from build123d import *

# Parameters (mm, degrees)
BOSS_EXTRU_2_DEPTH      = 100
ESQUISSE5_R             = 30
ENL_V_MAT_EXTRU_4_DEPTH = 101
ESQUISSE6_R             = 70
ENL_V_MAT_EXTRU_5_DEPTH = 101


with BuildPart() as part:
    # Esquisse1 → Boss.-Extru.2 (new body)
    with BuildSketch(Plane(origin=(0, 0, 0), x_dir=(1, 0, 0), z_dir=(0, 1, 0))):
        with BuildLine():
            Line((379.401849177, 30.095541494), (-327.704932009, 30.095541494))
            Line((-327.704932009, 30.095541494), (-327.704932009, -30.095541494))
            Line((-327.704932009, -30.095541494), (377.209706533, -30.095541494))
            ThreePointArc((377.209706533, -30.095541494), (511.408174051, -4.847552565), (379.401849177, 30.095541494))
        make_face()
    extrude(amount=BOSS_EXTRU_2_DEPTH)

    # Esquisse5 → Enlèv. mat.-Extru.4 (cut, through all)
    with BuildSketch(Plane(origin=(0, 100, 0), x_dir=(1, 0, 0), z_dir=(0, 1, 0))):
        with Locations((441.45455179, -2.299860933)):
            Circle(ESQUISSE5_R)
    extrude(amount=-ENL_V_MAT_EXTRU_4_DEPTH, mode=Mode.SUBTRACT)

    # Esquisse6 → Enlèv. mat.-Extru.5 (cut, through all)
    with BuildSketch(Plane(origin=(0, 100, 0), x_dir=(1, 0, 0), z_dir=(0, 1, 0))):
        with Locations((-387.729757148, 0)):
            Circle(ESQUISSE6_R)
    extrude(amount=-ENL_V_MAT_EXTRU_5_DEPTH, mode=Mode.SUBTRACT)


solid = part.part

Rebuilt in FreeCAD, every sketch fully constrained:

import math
import FreeCAD as App
import Part
import Sketcher

V = App.Vector
Q = App.Units.Quantity

doc = App.newDocument("Part")
body = doc.addObject("PartDesign::Body", "Body")

# Sketch on XZ plane
sketch1 = body.newObject("Sketcher::SketchObject", "Sketch")
sketch1.AttachmentSupport = (doc.getObject("XZ_Plane"), [""])
sketch1.MapMode = "FlatFace"
sketch1.addGeometry(Part.LineSegment(V(379.401849, -30.095541, 0), V(-327.704932, -30.095541, 0)), False)
sketch1.addGeometry(Part.LineSegment(V(-327.704932, -30.095541, 0), V(-327.704932, 30.095541, 0)), False)
sketch1.addGeometry(Part.LineSegment(V(-327.704932, 30.095541, 0), V(377.209707, 30.095541, 0)), False)
sketch1.addGeometry(Part.ArcOfCircle(Part.Circle(V(441.454552, 2.299861, 0), V(0, 0, 1), 70), math.radians(-152.432617), math.radians(156.604167)), False)
sketch1.addConstraint(Sketcher.Constraint("Coincident", 0, 2, 1, 1))
sketch1.addConstraint(Sketcher.Constraint("Coincident", 1, 2, 2, 1))
sketch1.addConstraint(Sketcher.Constraint("Coincident", 2, 2, 3, 2))
sketch1.addConstraint(Sketcher.Constraint("Coincident", 3, 1, 0, 1))
sketch1.addConstraint(Sketcher.Constraint("Horizontal", 0))
sketch1.addConstraint(Sketcher.Constraint("Vertical", 1))
sketch1.addConstraint(Sketcher.Constraint("Horizontal", 2))
sketch1.addConstraint(Sketcher.Constraint("Radius", 3, Q("70 mm")))
sketch1.addConstraint(Sketcher.Constraint("DistanceX", 0, 2, 0, 1, Q("707.106781 mm")))
sketch1.addConstraint(Sketcher.Constraint("DistanceX", 2, 1, 2, 2, Q("704.914639 mm")))
sketch1.addConstraint(Sketcher.Constraint("DistanceY", 1, 1, 1, 2, Q("60.191083 mm")))
sketch1.addConstraint(Sketcher.Constraint("DistanceX", -1, 1, 3, 3, Q("441.454552 mm")))
sketch1.addConstraint(Sketcher.Constraint("DistanceY", -1, 1, 3, 3, Q("2.299861 mm")))
pad1 = body.newObject("PartDesign::Pad", "Pad")
pad1.Profile = sketch1
pad1.Length = 100
pad1.Reversed = True

# Sketch on XZ plane
sketch2 = body.newObject("Sketcher::SketchObject", "Sketch001")
sketch2.AttachmentSupport = (doc.getObject("XZ_Plane"), [""])
sketch2.MapMode = "FlatFace"
sketch2.AttachmentOffset = App.Placement(V(0, 0, -100), App.Rotation())
sketch2.addGeometry(Part.Circle(V(441.454552, 2.299861, 0), V(0, 0, 1), 30), False)
sketch2.addConstraint(Sketcher.Constraint("Diameter", 0, Q("60 mm")))
sketch2.addConstraint(Sketcher.Constraint("DistanceX", -1, 1, 0, 3, Q("441.454552 mm")))
sketch2.addConstraint(Sketcher.Constraint("DistanceY", -1, 1, 0, 3, Q("2.299861 mm")))
pocket1 = body.newObject("PartDesign::Pocket", "Pocket")
pocket1.Profile = sketch2
pocket1.Type = "ThroughAll"
pocket1.Reversed = True

# Sketch on XZ plane
sketch3 = body.newObject("Sketcher::SketchObject", "Sketch002")
sketch3.AttachmentSupport = (doc.getObject("XZ_Plane"), [""])
sketch3.MapMode = "FlatFace"
sketch3.AttachmentOffset = App.Placement(V(0, 0, -100), App.Rotation())
sketch3.addGeometry(Part.Circle(V(-387.729757, 0, 0), V(0, 0, 1), 70), False)
sketch3.addConstraint(Sketcher.Constraint("PointOnObject", 0, 3, -1))
sketch3.addConstraint(Sketcher.Constraint("Diameter", 0, Q("140 mm")))
sketch3.addConstraint(Sketcher.Constraint("DistanceX", 0, 3, -1, 1, Q("387.729757 mm")))
pocket2 = body.newObject("PartDesign::Pocket", "Pocket001")
pocket2.Profile = sketch3
pocket2.Type = "ThroughAll"
pocket2.Reversed = True

doc.recompute()
